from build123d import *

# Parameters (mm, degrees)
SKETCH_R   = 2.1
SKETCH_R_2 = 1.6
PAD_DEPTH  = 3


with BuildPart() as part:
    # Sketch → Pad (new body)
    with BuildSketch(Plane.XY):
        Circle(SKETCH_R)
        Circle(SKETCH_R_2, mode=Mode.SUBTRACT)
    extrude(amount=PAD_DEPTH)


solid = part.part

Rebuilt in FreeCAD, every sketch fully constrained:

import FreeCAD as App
import Part
import Sketcher

V = App.Vector

doc = App.newDocument("Part")
params = doc.addObject("Spreadsheet::Sheet", "Params")
for row, (alias, value) in enumerate([
    ("sketch1_diameter", "4.2 mm"),
    ("sketch1_diameter2", "3.2 mm"),
    ("pad1_length", "3 mm"),
], start=1):
    params.set(f"A{row}", alias)
    params.set(f"B{row}", "=" + value)
    params.setAlias(f"B{row}", alias)

body = doc.addObject("PartDesign::Body", "Body")

# Sketch on XY plane
sketch1 = body.newObject("Sketcher::SketchObject", "Sketch")
sketch1.AttachmentSupport = (doc.getObject("XY_Plane"), [""])
sketch1.MapMode = "FlatFace"
sketch1.addGeometry([
    Part.Circle(V(0, 0, 0), V(0, 0, 1), 2.1),
    Part.Circle(V(0, 0, 0), V(0, 0, 1), 1.6),
], False)
sketch1.addConstraint([
    Sketcher.Constraint("Coincident", 0, 3, -1, 1),
    Sketcher.Constraint("Coincident", 1, 3, -1, 1),
    Sketcher.Constraint("Diameter", 0, 4.2),
    Sketcher.Constraint("Diameter", 1, 3.2),
])
sketch1.setExpression("Constraints[2]", "Params.sketch1_diameter")
sketch1.setExpression("Constraints[3]", "Params.sketch1_diameter2")
pad1 = body.newObject("PartDesign::Pad", "Pad")
pad1.Profile = sketch1
pad1.setExpression("Length", "Params.pad1_length")

doc.recompute()
